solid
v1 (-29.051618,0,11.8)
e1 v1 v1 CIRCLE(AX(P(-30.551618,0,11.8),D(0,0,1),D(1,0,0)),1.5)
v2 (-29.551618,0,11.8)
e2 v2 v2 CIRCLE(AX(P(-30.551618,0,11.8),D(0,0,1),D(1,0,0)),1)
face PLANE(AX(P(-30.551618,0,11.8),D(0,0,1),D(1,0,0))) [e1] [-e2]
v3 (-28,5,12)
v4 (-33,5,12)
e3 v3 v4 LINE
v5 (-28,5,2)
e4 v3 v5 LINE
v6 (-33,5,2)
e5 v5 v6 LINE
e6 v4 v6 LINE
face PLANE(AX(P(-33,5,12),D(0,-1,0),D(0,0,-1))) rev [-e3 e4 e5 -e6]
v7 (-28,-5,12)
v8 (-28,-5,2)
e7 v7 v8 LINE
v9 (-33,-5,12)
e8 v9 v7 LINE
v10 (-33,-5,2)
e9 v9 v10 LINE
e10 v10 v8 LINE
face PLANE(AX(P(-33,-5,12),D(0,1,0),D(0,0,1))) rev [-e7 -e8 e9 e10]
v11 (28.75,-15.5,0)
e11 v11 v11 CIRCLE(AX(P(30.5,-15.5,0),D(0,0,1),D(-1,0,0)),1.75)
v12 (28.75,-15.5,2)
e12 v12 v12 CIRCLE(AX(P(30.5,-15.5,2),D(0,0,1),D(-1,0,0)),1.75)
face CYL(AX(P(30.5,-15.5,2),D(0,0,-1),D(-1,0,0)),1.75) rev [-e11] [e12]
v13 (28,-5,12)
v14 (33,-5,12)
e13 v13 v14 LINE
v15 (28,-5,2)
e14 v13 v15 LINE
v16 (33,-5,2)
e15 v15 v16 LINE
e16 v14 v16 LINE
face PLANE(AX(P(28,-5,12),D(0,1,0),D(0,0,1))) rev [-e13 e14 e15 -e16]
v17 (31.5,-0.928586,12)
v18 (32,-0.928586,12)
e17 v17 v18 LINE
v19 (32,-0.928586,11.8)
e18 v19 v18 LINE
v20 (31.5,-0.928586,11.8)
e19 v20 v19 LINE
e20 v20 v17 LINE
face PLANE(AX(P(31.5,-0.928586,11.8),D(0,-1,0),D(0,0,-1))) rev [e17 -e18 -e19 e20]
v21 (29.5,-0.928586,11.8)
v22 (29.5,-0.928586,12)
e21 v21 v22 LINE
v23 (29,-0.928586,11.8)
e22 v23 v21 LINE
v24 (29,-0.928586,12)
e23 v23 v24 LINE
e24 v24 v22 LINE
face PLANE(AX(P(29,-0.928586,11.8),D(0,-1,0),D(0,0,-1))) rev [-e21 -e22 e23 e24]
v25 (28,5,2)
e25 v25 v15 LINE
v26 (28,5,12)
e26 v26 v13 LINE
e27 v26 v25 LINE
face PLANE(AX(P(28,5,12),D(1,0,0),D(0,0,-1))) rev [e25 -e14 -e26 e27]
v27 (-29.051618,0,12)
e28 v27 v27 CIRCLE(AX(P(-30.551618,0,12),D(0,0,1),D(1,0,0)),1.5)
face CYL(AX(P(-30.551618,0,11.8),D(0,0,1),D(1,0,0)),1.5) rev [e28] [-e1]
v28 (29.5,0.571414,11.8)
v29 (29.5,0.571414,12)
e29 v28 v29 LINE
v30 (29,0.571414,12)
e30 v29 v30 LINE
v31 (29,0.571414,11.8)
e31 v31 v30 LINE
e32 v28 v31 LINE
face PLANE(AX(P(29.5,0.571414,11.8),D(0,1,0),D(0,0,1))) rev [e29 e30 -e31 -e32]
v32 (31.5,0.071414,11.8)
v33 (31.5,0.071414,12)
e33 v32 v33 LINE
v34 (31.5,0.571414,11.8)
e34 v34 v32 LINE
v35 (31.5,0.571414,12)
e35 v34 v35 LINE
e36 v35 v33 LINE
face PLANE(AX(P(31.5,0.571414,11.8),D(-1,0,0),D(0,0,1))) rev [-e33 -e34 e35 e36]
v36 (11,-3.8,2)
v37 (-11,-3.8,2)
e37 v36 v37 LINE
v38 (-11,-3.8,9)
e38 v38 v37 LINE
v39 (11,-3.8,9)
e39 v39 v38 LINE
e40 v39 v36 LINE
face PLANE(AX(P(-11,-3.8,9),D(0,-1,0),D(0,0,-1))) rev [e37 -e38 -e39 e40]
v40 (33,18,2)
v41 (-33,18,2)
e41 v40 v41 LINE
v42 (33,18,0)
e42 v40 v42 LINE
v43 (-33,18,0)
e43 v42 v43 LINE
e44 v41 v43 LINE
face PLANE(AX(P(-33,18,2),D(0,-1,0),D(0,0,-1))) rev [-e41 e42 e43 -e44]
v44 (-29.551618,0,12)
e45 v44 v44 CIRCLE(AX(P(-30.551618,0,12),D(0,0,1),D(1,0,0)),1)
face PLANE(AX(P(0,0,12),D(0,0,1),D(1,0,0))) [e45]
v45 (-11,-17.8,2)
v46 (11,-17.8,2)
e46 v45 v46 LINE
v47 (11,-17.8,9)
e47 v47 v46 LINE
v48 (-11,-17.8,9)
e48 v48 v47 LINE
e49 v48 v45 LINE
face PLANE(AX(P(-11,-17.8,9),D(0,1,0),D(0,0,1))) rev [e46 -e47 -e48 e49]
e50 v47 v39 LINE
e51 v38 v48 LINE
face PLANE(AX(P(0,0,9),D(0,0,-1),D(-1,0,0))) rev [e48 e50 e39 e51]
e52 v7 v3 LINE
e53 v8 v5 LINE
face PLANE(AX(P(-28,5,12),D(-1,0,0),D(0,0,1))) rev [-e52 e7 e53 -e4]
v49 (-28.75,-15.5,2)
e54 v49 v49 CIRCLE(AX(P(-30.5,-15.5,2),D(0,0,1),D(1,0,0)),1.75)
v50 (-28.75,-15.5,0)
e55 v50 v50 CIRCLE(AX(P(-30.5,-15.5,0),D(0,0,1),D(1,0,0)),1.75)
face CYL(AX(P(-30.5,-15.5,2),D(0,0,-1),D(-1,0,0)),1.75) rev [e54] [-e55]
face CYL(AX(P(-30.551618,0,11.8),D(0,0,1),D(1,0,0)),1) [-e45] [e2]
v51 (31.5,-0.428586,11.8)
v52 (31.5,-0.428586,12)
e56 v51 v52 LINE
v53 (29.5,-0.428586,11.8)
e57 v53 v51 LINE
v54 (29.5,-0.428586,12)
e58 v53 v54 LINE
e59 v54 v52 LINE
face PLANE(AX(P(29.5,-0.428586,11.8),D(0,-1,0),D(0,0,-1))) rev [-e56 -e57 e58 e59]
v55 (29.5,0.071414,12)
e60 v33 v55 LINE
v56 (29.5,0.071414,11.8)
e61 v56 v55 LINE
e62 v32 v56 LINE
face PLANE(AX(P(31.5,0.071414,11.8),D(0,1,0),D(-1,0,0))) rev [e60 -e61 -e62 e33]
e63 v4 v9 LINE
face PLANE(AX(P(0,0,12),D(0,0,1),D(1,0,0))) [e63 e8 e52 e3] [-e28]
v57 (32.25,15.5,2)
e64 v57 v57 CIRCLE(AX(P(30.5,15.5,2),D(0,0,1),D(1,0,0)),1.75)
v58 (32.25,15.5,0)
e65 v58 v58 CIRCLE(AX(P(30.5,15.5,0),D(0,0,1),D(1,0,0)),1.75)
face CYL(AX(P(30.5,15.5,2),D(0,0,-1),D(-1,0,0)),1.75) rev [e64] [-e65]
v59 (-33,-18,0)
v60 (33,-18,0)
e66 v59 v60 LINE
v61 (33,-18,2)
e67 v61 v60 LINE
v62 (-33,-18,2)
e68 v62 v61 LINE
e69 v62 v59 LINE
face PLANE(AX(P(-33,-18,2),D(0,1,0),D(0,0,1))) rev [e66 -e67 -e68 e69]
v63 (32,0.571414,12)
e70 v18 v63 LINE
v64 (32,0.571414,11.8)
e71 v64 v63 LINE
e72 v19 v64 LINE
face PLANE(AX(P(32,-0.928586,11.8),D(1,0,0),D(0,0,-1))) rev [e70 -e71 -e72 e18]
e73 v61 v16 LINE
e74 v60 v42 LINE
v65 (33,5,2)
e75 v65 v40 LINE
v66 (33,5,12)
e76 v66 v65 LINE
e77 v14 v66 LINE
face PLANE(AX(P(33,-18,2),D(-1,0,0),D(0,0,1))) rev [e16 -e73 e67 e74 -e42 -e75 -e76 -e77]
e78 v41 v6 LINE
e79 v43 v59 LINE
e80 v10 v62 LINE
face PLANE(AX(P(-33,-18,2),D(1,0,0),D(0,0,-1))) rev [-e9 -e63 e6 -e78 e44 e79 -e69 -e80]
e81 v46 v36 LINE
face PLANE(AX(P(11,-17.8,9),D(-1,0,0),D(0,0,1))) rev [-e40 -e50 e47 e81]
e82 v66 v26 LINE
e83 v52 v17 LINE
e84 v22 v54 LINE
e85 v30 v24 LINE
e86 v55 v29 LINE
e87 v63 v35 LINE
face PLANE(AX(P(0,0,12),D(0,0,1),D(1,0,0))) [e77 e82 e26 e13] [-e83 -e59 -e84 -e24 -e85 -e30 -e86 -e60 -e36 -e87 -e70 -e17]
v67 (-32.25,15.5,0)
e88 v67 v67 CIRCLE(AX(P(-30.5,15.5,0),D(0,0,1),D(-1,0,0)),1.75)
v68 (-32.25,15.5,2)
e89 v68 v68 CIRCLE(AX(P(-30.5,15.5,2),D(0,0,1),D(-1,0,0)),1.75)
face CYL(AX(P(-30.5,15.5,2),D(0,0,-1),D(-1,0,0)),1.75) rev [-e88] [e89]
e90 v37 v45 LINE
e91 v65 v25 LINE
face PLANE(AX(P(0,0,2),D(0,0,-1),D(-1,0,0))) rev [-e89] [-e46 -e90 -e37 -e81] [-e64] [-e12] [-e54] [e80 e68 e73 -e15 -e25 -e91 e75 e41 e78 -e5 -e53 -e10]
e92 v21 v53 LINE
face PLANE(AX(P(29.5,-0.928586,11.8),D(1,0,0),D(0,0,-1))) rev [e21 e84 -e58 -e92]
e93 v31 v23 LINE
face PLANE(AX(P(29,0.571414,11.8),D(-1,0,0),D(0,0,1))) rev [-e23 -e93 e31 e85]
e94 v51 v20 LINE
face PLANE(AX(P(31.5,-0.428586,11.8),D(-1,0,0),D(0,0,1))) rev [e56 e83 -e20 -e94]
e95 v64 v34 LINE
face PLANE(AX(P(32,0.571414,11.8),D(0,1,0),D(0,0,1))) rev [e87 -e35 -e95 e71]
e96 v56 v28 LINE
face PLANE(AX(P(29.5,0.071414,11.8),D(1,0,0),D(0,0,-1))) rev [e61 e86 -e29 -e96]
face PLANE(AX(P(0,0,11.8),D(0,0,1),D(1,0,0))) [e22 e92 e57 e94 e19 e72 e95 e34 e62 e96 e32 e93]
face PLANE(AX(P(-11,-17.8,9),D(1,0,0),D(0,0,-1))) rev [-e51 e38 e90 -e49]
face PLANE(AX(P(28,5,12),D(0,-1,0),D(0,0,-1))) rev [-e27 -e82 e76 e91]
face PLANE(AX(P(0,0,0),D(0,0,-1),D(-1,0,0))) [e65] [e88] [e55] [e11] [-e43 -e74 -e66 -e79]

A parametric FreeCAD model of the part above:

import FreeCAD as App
import Part
import Sketcher
from FreeCAD import Vector
Q = App.Units.Quantity

doc = App.newDocument("Part")
body = doc.addObject("PartDesign::Body", "Body")

# Sketch on XY plane
sketch1 = doc.addObject("Sketcher::SketchObject", "Sketch")
body.addObject(sketch1)
sketch1.AttachmentSupport = (doc.XY_Plane, [""])
sketch1.MapMode = "FlatFace"
sketch1.addGeometry(Part.LineSegment(Vector(-33, 18, 0), Vector(-33, -18, 0)), False)
sketch1.addGeometry(Part.LineSegment(Vector(-33, -18, 0), Vector(33, -18, 0)), False)
sketch1.addGeometry(Part.LineSegment(Vector(33, -18, 0), Vector(33, 18, 0)), False)
sketch1.addGeometry(Part.LineSegment(Vector(33, 18, 0), Vector(-33, 18, 0)), False)
sketch1.addGeometry(Part.Circle(Vector(-30.5, -15.5, 0), Vector(0, 0, 1), 1.8), False)
sketch1.addGeometry(Part.Circle(Vector(30.5, -15.5, 0), Vector(0, 0, 1), 1.8), False)
sketch1.addGeometry(Part.Circle(Vector(-30.5, 15.5, 0), Vector(0, 0, 1), 1.8), False)
sketch1.addGeometry(Part.Circle(Vector(30.5, 15.5, 0), Vector(0, 0, 1), 1.8), False)
sketch1.addConstraint(Sketcher.Constraint("Coincident", 0, 2, 1, 1))
sketch1.addConstraint(Sketcher.Constraint("Coincident", 1, 2, 2, 1))
sketch1.addConstraint(Sketcher.Constraint("Coincident", 2, 2, 3, 1))
sketch1.addConstraint(Sketcher.Constraint("Coincident", 3, 2, 0, 1))
sketch1.addConstraint(Sketcher.Constraint("Vertical", 0))
sketch1.addConstraint(Sketcher.Constraint("Horizontal", 1))
sketch1.addConstraint(Sketcher.Constraint("Vertical", 2))
sketch1.addConstraint(Sketcher.Constraint("Horizontal", 3))
sketch1.addConstraint(Sketcher.Constraint("Equal", 4, 5))
sketch1.addConstraint(Sketcher.Constraint("Equal", 5, 6))
sketch1.addConstraint(Sketcher.Constraint("Equal", 6, 7))
sketch1.addConstraint(Sketcher.Constraint("Symmetric", 5, 3, 6, 3, -1, 1))
sketch1.addConstraint(Sketcher.Constraint("Symmetric", 4, 3, 7, 3, -1, 1))
sketch1.addConstraint(Sketcher.Constraint("Symmetric", 0, 2, 2, 2, -1, 1))
sketch1.addConstraint(Sketcher.Constraint("Symmetric", 4, 3, 5, 3, -2))
sketch1.addConstraint(Sketcher.Constraint("Diameter", 4, Q("3.5 mm")))
sketch1.addConstraint(Sketcher.Constraint("DistanceX", 1, 1, 1, 2, Q("66 mm")))
sketch1.addConstraint(Sketcher.Constraint("DistanceY", 0, 2, 0, 1, Q("36 mm")))
sketch1.addConstraint(Sketcher.Constraint("DistanceX", 4, 3, 5, 3, Q("61 mm")))
sketch1.addConstraint(Sketcher.Constraint("DistanceY", 4, 3, 6, 3, Q("31 mm")))
pad1 = doc.addObject("PartDesign::Pad", "Pad")
body.addObject(pad1)
pad1.Profile = sketch1
pad1.Length = 2

# Sketch on XY plane
sketch2 = doc.addObject("Sketcher::SketchObject", "Sketch001")
body.addObject(sketch2)
sketch2.AttachmentSupport = (doc.XY_Plane, [""])
sketch2.MapMode = "FlatFace"
sketch2.AttachmentOffset = App.Placement(Vector(0, 0, 2), App.Rotation())
sketch2.addGeometry(Part.LineSegment(Vector(-11, -4, 0), Vector(-11, -18, 0)), False)
sketch2.addGeometry(Part.LineSegment(Vector(-11, -18, 0), Vector(11, -18, 0)), False)
sketch2.addGeometry(Part.LineSegment(Vector(11, -18, 0), Vector(11, -4, 0)), False)
sketch2.addGeometry(Part.LineSegment(Vector(11, -4, 0), Vector(-11, -4, 0)), False)
sketch2.addConstraint(Sketcher.Constraint("Coincident", 0, 2, 1, 1))
sketch2.addConstraint(Sketcher.Constraint("Coincident", 1, 2, 2, 1))
sketch2.addConstraint(Sketcher.Constraint("Coincident", 2, 2, 3, 1))
sketch2.addConstraint(Sketcher.Constraint("Coincident", 3, 2, 0, 1))
sketch2.addConstraint(Sketcher.Constraint("Vertical", 0))
sketch2.addConstraint(Sketcher.Constraint("Horizontal", 1))
sketch2.addConstraint(Sketcher.Constraint("Vertical", 2))
sketch2.addConstraint(Sketcher.Constraint("Horizontal", 3))
sketch2.addConstraint(Sketcher.Constraint("DistanceX", 1, 1, 1, 2, Q("22 mm")))
sketch2.addConstraint(Sketcher.Constraint("DistanceY", 0, 2, 0, 1, Q("14 mm")))
sketch2.addConstraint(Sketcher.Constraint("DistanceX", 0, 2, -1, 1, Q("11 mm")))
sketch2.addConstraint(Sketcher.Constraint("DistanceY", 0, 2, -1, 1, Q("17.8 mm")))
pad2 = doc.addObject("PartDesign::Pad", "Pad001")
body.addObject(pad2)
pad2.Profile = sketch2
pad2.Length = 7

# Sketch on XY plane
sketch3 = doc.addObject("Sketcher::SketchObject", "Sketch002")
body.addObject(sketch3)
sketch3.AttachmentSupport = (doc.XY_Plane, [""])
sketch3.MapMode = "FlatFace"
sketch3.AttachmentOffset = App.Placement(Vector(0, 0, 2), App.Rotation())
sketch3.addGeometry(Part.LineSegment(Vector(-33, 5, 0), Vector(-33, -5, 0)), False)
sketch3.addGeometry(Part.LineSegment(Vector(-33, -5, 0), Vector(-28, -5, 0)), False)
sketch3.addGeometry(Part.LineSegment(Vector(-28, -5, 0), Vector(-28, 5, 0)), False)
sketch3.addGeometry(Part.LineSegment(Vector(-28, 5, 0), Vector(-33, 5, 0)), False)
sketch3.addGeometry(Part.LineSegment(Vector(28, 5, 0), Vector(28, -5, 0)), False)
sketch3.addGeometry(Part.LineSegment(Vector(28, -5, 0), Vector(33, -5, 0)), False)
sketch3.addGeometry(Part.LineSegment(Vector(33, -5, 0), Vector(33, 5, 0)), False)
sketch3.addGeometry(Part.LineSegment(Vector(33, 5, 0), Vector(28, 5, 0)), False)
sketch3.addConstraint(Sketcher.Constraint("Coincident", 0, 2, 1, 1))
sketch3.addConstraint(Sketcher.Constraint("Coincident", 1, 2, 2, 1))
sketch3.addConstraint(Sketcher.Constraint("Coincident", 2, 2, 3, 1))
sketch3.addConstraint(Sketcher.Constraint("Coincident", 3, 2, 0, 1))
sketch3.addConstraint(Sketcher.Constraint("Coincident", 4, 2, 5, 1))
sketch3.addConstraint(Sketcher.Constraint("Coincident", 5, 2, 6, 1))
sketch3.addConstraint(Sketcher.Constraint("Coincident", 6, 2, 7, 1))
sketch3.addConstraint(Sketcher.Constraint("Coincident", 7, 2, 4, 1))
sketch3.addConstraint(Sketcher.Constraint("Vertical", 0))
sketch3.addConstraint(Sketcher.Constraint("Horizontal", 1))
sketch3.addConstraint(Sketcher.Constraint("Vertical", 2))
sketch3.addConstraint(Sketcher.Constraint("Horizontal", 3))
sketch3.addConstraint(Sketcher.Constraint("Vertical", 4))
sketch3.addConstraint(Sketcher.Constraint("Horizontal", 5))
sketch3.addConstraint(Sketcher.Constraint("Vertical", 6))
sketch3.addConstraint(Sketcher.Constraint("Horizontal", 7))
sketch3.addConstraint(Sketcher.Constraint("Symmetric", 2, 2, 4, 2, -1, 1))
sketch3.addConstraint(Sketcher.Constraint("Symmetric", 0, 2, 6, 2, -1, 1))
sketch3.addConstraint(Sketcher.Constraint("Horizontal", 1, 2, 4, 2))
sketch3.addConstraint(Sketcher.Constraint("DistanceX", 1, 1, 1, 2, Q("5 mm")))
sketch3.addConstraint(Sketcher.Constraint("DistanceY", 0, 2, 0, 1, Q("10 mm")))
sketch3.addConstraint(Sketcher.Constraint("DistanceX", 0, 2, -1, 1, Q("33 mm")))
pad3 = doc.addObject("PartDesign::Pad", "Pad002")
body.addObject(pad3)
pad3.Profile = sketch3
pad3.Length = 10

# Sketch on XY plane
sketch4 = doc.addObject("Sketcher::SketchObject", "Sketch003")
body.addObject(sketch4)
sketch4.AttachmentSupport = (doc.XY_Plane, [""])
sketch4.MapMode = "FlatFace"
sketch4.AttachmentOffset = App.Placement(Vector(0, 0, 12), App.Rotation())
sketch4.addGeometry(Part.LineSegment(Vector(29, 0.57, 0), Vector(29, -0.93, 0)), False)
sketch4.addGeometry(Part.LineSegment(Vector(29, -0.93, 0), Vector(29.5, -0.93, 0)), False)
sketch4.addGeometry(Part.LineSegment(Vector(29.5, -0.93, 0), Vector(29.5, -0.43, 0)), False)
sketch4.addGeometry(Part.LineSegment(Vector(29.5, -0.43, 0), Vector(31.5, -0.43, 0)), False)
sketch4.addGeometry(Part.LineSegment(Vector(31.5, -0.43, 0), Vector(31.5, -0.93, 0)), False)
sketch4.addGeometry(Part.LineSegment(Vector(31.5, -0.93, 0), Vector(32, -0.93, 0)), False)
sketch4.addGeometry(Part.LineSegment(Vector(32, -0.93, 0), Vector(32, 0.57, 0)), False)
sketch4.addGeometry(Part.LineSegment(Vector(32, 0.57, 0), Vector(31.5, 0.57, 0)), False)
sketch4.addGeometry(Part.LineSegment(Vector(31.5, 0.57, 0), Vector(31.5, 0.07, 0)), False)
sketch4.addGeometry(Part.LineSegment(Vector(31.5, 0.07, 0), Vector(29.5, 0.07, 0)), False)
sketch4.addGeometry(Part.LineSegment(Vector(29.5, 0.07, 0), Vector(29.5, 0.57, 0)), False)
sketch4.addGeometry(Part.LineSegment(Vector(29.5, 0.57, 0), Vector(29, 0.57, 0)), False)
sketch4.addConstraint(Sketcher.Constraint("Coincident", 0, 2, 1, 1))
sketch4.addConstraint(Sketcher.Constraint("Coincident", 1, 2, 2, 1))
sketch4.addConstraint(Sketcher.Constraint("Coincident", 2, 2, 3, 1))
sketch4.addConstraint(Sketcher.Constraint("Coincident", 3, 2, 4, 1))
sketch4.addConstraint(Sketcher.Constraint("Coincident", 4, 2, 5, 1))
sketch4.addConstraint(Sketcher.Constraint("Coincident", 5, 2, 6, 1))
sketch4.addConstraint(Sketcher.Constraint("Coincident", 6, 2, 7, 1))
sketch4.addConstraint(Sketcher.Constraint("Coincident", 7, 2, 8, 1))
sketch4.addConstraint(Sketcher.Constraint("Coincident", 8, 2, 9, 1))
sketch4.addConstraint(Sketcher.Constraint("Coincident", 9, 2, 10, 1))
sketch4.addConstraint(Sketcher.Constraint("Coincident", 10, 2, 11, 1))
sketch4.addConstraint(Sketcher.Constraint("Coincident", 11, 2, 0, 1))
sketch4.addConstraint(Sketcher.Constraint("Vertical", 0))
sketch4.addConstraint(Sketcher.Constraint("Horizontal", 1))
sketch4.addConstraint(Sketcher.Constraint("Vertical", 2))
sketch4.addConstraint(Sketcher.Constraint("Horizontal", 3))
sketch4.addConstraint(Sketcher.Constraint("Vertical", 4))
sketch4.addConstraint(Sketcher.Constraint("Horizontal", 5))
sketch4.addConstraint(Sketcher.Constraint("Vertical", 6))
sketch4.addConstraint(Sketcher.Constraint("Horizontal", 7))
sketch4.addConstraint(Sketcher.Constraint("Vertical", 8))
sketch4.addConstraint(Sketcher.Constraint("Horizontal", 9))
sketch4.addConstraint(Sketcher.Constraint("Vertical", 10))
sketch4.addConstraint(Sketcher.Constraint("Horizontal", 11))
sketch4.addConstraint(Sketcher.Constraint("Horizontal", 1, 2, 4, 2))
sketch4.addConstraint(Sketcher.Constraint("Horizontal", 7, 2, 10, 2))
sketch4.addConstraint(Sketcher.Constraint("Vertical", 4, 2, 7, 2))
sketch4.addConstraint(Sketcher.Constraint("Vertical", 2, 2, 9, 2))
sketch4.addConstraint(Sketcher.Constraint("Equal", 1, 5))
sketch4.addConstraint(Sketcher.Constraint("Equal", 11, 2))
sketch4.addConstraint(Sketcher.Constraint("Equal", 4, 8))
sketch4.addConstraint(Sketcher.Constraint("DistanceX", 3, 1, 3, 2, Q("2 mm")))
sketch4.addConstraint(Sketcher.Constraint("DistanceX", 1, 1, 1, 2, Q("0.5 mm")))
sketch4.addConstraint(Sketcher.Constraint("DistanceY", 0, 2, 0, 1, Q("1.5 mm")))
sketch4.addConstraint(Sketcher.Constraint("DistanceX", -1, 1, 0, 2, Q("29 mm")))
sketch4.addConstraint(Sketcher.Constraint("DistanceY", 0, 2, -1, 1, Q("0.928586 mm")))
pocket1 = doc.addObject("PartDesign::Pocket", "Pocket")
body.addObject(pocket1)
pocket1.Profile = sketch4
pocket1.Length = 0.2

# Sketch on XY plane
sketch5 = doc.addObject("Sketcher::SketchObject", "Sketch004")
body.addObject(sketch5)
sketch5.AttachmentSupport = (doc.XY_Plane, [""])
sketch5.MapMode = "FlatFace"
sketch5.AttachmentOffset = App.Placement(Vector(0, 0, 12), App.Rotation())
sketch5.addGeometry(Part.Circle(Vector(-30.6, 0, 0), Vector(0, 0, 1), 1.5), False)
sketch5.addGeometry(Part.Circle(Vector(-30.6, 0, 0), Vector(0, 0, 1), 1), False)
sketch5.addConstraint(Sketcher.Constraint("Coincident", 1, 3, 0, 3))
sketch5.addConstraint(Sketcher.Constraint("PointOnObject", 0, 3, -1))
sketch5.addConstraint(Sketcher.Constraint("Diameter", 0, Q("3 mm")))
sketch5.addConstraint(Sketcher.Constraint("Diameter", 1, Q("2 mm")))
sketch5.addConstraint(Sketcher.Constraint("DistanceX", 0, 3, -1, 1, Q("30.551618 mm")))
pocket2 = doc.addObject("PartDesign::Pocket", "Pocket001")
body.addObject(pocket2)
pocket2.Profile = sketch5
pocket2.Length = 0.2

doc.recompute()
